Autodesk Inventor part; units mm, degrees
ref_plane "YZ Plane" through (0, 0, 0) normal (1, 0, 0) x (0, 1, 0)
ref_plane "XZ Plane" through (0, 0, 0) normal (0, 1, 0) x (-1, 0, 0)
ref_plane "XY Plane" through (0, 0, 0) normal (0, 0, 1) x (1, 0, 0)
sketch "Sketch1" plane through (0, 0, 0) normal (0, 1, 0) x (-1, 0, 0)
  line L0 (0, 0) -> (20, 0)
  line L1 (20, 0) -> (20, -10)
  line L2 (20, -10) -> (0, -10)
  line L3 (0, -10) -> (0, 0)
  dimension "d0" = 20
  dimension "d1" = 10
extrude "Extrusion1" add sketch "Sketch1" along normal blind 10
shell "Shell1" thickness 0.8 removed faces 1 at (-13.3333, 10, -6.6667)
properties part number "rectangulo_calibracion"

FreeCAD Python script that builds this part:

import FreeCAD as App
import Part
import Sketcher

V = App.Vector


def faces_at(feature, points):
    """Names of the faces that lie closest to the given points."""
    faces = feature.Shape.Faces
    near = lambda p: min(range(len(faces)), key=lambda i: faces[i].distToShape(Part.Vertex(*p))[0])
    return sorted({f"Face{near(p) + 1}" for p in points})


def add_polygon(sketch, points):
    """Adds a closed chain of lines whose ends are joined by coincident constraints."""
    first, n = sketch.GeometryCount, len(points)
    for a, b in zip(points, points[1:] + points[:1]):
        sketch.addGeometry(Part.LineSegment(App.Vector(*a, 0), App.Vector(*b, 0)), False)
    for i in range(n):
        sketch.addConstraint(Sketcher.Constraint("Coincident", first + i, 2, first + (i + 1) % n, 1))

doc = App.newDocument("Part")
body = doc.addObject("PartDesign::Body", "Body")

# Sketch on XZ plane
sketch1 = doc.addObject("Sketcher::SketchObject", "Sketch")
body.addObject(sketch1)
sketch1.AttachmentSupport = (doc.XZ_Plane, [""])
sketch1.MapMode = "FlatFace"
add_polygon(sketch1, [(-20, 0), (0, 0), (0, -10), (-20, -10)])  # lines 0-3
sketch1.addConstraint([
    Sketcher.Constraint("Horizontal", 0),
    Sketcher.Constraint("Vertical", 1),
    Sketcher.Constraint("Horizontal", 2),
    Sketcher.Constraint("Vertical", 3),
    Sketcher.Constraint("Coincident", 0, 2, -1, 1),
    Sketcher.Constraint("DistanceX", 0, 1, 0, 2, 20.0),
    Sketcher.Constraint("DistanceY", 1, 2, 1, 1, 10.0),
])
pad1 = doc.addObject("PartDesign::Pad", "Pad")
body.addObject(pad1)
pad1.Profile = sketch1
pad1.Length = 10
pad1.Reversed = True
doc.recompute()

thickness = doc.addObject("PartDesign::Thickness", "Thickness")
body.addObject(thickness)
thickness.Base = (pad1, faces_at(pad1, [(-13.333, 10, -6.667)]))
thickness.Value = 0.8
thickness.Reversed = True
thickness.Join = "Intersection"

doc.recompute()
